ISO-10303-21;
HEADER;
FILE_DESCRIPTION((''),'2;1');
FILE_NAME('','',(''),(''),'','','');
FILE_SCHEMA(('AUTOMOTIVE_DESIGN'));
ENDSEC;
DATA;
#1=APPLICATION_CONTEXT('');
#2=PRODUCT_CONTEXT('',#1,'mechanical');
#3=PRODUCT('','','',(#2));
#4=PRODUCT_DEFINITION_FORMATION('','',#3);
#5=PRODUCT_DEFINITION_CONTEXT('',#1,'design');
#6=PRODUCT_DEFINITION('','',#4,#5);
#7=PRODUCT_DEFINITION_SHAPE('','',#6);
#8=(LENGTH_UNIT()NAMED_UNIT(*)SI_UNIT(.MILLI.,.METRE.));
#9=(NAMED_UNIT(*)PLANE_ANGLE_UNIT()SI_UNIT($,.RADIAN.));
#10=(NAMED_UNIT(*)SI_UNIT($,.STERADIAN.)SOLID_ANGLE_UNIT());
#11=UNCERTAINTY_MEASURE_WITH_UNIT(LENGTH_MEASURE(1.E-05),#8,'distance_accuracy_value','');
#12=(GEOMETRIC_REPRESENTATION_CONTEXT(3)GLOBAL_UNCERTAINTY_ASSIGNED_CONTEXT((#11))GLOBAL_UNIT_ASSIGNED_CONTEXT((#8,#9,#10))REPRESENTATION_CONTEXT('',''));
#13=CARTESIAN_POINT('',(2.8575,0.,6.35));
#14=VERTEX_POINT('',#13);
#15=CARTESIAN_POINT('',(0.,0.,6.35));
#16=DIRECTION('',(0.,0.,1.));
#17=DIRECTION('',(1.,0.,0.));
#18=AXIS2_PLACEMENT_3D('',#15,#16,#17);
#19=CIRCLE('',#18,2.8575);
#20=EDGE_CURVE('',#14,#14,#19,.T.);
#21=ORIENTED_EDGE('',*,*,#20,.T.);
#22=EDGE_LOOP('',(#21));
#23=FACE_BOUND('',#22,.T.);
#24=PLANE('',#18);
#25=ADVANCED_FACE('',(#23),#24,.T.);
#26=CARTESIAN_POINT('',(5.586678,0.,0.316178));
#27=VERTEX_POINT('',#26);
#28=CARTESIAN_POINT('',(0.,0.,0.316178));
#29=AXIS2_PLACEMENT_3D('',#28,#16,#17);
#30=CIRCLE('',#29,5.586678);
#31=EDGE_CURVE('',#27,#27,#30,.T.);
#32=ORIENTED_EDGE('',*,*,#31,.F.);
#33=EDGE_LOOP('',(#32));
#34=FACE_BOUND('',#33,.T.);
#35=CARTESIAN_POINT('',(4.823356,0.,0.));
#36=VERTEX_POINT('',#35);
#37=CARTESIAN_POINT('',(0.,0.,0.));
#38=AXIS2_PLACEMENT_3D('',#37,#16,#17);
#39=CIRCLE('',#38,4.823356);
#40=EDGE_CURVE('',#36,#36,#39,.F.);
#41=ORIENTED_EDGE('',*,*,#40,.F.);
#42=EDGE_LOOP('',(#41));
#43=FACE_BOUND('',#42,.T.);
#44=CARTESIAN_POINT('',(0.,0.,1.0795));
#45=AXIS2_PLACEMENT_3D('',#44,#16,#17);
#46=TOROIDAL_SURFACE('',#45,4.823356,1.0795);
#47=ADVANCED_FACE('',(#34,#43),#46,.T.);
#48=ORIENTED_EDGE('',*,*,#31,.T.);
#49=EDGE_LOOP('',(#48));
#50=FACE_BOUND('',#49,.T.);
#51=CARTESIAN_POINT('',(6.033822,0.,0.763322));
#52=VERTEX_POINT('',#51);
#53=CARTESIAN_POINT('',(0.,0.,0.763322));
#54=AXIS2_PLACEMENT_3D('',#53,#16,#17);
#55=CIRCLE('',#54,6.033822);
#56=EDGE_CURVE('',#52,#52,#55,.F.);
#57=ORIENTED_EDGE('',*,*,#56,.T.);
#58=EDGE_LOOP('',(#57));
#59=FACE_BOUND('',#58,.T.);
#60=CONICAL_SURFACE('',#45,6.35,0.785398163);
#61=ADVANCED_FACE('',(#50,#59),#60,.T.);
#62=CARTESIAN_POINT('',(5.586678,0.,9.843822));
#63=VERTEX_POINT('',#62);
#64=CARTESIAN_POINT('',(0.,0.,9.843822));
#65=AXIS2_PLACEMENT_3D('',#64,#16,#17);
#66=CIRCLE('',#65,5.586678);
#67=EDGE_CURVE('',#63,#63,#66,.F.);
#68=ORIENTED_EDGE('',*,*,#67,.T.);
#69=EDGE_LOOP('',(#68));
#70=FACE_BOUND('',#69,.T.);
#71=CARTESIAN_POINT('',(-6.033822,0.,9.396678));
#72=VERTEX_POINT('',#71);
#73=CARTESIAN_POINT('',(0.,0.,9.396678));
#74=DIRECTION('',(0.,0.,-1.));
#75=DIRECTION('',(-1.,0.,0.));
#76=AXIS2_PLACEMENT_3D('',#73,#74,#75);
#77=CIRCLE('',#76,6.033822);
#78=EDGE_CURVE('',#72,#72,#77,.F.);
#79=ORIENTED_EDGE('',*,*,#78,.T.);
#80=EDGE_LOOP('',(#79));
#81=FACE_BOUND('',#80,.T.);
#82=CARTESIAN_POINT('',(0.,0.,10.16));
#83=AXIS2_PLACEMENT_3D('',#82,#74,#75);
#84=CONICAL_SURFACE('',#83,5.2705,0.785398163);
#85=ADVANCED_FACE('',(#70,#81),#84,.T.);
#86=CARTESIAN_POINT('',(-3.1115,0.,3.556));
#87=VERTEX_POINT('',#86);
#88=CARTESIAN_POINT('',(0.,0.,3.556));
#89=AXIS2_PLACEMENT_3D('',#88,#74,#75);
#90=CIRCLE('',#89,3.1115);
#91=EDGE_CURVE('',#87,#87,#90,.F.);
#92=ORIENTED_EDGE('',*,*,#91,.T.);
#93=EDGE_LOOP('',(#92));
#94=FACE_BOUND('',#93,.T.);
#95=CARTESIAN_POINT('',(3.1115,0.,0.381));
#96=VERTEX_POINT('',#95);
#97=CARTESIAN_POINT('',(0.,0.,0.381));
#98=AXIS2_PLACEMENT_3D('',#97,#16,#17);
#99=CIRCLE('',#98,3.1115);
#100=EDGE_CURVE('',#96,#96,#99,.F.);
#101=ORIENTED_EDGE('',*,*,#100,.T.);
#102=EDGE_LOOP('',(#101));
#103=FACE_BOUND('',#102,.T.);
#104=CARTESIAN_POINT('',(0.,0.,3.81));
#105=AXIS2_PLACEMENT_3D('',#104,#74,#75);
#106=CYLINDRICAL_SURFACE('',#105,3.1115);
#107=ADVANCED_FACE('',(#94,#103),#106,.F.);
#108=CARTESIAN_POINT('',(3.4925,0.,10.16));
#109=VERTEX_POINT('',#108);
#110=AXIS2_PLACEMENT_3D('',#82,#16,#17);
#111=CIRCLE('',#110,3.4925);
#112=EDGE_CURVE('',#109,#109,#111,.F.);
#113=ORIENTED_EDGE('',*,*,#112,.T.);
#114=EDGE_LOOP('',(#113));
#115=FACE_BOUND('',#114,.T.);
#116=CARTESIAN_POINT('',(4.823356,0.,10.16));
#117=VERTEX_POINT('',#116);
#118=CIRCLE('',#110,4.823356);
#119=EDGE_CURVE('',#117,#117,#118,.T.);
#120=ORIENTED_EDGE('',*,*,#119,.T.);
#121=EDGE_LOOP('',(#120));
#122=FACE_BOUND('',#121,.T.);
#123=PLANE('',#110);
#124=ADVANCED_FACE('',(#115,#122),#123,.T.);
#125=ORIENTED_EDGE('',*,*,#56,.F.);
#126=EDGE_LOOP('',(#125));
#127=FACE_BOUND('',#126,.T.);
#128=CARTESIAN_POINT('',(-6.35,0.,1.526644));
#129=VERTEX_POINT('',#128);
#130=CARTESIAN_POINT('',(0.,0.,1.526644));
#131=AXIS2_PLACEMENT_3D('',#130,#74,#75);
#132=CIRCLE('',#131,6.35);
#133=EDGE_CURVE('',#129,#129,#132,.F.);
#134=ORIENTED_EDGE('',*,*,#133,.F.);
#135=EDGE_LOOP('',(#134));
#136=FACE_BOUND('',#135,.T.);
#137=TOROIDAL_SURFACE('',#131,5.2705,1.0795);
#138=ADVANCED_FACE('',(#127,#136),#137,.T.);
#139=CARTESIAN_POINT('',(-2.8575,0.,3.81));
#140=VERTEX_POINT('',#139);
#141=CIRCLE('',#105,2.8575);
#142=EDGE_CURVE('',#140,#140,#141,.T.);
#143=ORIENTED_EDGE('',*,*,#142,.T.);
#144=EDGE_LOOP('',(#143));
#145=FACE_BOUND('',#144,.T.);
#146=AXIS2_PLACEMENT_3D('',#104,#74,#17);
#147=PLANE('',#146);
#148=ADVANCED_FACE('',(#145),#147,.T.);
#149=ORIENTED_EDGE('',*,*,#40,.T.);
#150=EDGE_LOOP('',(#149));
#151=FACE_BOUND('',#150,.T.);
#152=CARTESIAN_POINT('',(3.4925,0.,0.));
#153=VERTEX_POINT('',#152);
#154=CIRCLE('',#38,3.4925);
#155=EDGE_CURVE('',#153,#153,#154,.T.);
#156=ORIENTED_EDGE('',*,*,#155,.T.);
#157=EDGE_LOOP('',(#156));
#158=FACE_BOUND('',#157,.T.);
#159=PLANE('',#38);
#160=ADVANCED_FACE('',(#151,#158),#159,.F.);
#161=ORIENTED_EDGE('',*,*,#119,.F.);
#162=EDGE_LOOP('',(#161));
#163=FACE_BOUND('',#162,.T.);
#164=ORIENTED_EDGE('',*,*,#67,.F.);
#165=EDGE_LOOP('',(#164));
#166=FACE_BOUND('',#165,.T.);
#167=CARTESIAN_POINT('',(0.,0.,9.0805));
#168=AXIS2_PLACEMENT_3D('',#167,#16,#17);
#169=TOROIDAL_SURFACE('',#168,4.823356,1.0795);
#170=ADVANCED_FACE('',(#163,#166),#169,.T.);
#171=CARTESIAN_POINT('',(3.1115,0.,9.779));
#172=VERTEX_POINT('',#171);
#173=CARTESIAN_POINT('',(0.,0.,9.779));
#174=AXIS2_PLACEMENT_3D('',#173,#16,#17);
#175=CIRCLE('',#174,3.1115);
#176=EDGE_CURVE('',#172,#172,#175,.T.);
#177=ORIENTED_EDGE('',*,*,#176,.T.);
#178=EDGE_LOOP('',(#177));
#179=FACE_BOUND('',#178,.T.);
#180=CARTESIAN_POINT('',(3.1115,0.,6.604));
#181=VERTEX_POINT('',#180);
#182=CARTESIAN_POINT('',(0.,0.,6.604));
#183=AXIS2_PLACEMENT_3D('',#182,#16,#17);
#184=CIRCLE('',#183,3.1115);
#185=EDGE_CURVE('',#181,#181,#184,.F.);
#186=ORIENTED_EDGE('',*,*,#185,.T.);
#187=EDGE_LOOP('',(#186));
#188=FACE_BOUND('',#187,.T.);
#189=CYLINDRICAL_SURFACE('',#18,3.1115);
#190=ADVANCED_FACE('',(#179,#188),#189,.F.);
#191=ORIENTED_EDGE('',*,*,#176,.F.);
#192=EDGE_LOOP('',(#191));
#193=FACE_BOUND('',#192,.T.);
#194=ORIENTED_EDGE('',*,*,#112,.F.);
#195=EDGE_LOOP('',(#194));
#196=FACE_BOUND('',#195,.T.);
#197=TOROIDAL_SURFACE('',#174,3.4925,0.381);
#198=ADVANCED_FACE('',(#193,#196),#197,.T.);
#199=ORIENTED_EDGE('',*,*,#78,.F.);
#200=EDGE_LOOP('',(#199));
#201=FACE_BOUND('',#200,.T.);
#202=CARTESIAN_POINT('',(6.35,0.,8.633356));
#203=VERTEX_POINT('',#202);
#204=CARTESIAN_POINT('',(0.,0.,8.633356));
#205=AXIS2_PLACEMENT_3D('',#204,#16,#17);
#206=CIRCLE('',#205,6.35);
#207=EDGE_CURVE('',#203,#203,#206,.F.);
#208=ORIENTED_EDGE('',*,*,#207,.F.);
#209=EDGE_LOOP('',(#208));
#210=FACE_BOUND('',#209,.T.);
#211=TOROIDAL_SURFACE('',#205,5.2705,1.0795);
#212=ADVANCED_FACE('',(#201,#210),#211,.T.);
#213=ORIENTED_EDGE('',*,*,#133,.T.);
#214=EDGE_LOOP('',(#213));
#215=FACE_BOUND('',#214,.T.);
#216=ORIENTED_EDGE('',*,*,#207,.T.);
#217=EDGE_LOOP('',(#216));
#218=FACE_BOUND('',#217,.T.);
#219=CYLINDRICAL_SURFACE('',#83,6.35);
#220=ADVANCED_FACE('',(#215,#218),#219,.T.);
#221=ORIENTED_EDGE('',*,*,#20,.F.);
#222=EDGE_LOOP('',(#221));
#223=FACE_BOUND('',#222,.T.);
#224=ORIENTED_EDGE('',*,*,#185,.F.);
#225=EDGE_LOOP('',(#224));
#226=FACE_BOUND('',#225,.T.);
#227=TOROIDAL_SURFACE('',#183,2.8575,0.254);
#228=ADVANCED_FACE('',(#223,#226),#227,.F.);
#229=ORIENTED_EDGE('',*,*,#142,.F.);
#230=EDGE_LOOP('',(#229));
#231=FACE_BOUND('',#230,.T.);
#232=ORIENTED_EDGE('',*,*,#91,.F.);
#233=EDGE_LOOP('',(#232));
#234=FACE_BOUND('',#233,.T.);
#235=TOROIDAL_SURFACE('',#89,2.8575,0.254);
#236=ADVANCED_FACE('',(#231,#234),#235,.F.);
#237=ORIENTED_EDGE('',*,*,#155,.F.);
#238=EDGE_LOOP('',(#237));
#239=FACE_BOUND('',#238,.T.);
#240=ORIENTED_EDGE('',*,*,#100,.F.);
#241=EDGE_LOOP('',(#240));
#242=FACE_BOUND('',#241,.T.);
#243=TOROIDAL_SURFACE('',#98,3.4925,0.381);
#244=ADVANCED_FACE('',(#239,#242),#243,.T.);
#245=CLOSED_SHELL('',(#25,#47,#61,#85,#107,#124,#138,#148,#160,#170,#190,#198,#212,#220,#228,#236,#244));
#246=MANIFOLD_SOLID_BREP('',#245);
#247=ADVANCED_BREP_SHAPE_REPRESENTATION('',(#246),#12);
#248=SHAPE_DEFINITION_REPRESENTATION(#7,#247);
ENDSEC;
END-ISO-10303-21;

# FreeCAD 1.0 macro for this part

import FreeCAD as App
import Part
import Sketcher

V = App.Vector
Q = App.Units.Quantity


def edges_at(feature, points):
    """Names of the edges that pass closest to the given points."""
    edges = feature.Shape.Edges
    near = lambda p: min(range(len(edges)), key=lambda i: edges[i].distToShape(Part.Vertex(*p))[0])
    return sorted({f"Edge{near(p) + 1}" for p in points})

doc = App.newDocument("Part")
params = doc.addObject("Spreadsheet::Sheet", "Params")
for row, (alias, value) in enumerate([
    ("sketch1_diameter", "0.5 in"),
    ("pad1_length", "0.4 in"),
    ("sketch2_diameter", "0.245 in"),
    ("pocket1_length", "0.15 in"),
    ("chamfer_size", "0.0425 in"),
    ("fillet_radius", "0.01 in"),
    ("fillet2_radius", "0.015 in"),
    ("fillet3_radius", "0.0425 in"),
], start=1):
    params.set(f"A{row}", alias)
    params.set(f"B{row}", "=" + value)
    params.setAlias(f"B{row}", alias)

body = doc.addObject("PartDesign::Body", "Body")

sketch1 = body.newObject("Sketcher::SketchObject", "Sketch")
sketch1.AttachmentSupport = (doc.getObject("XY_Plane"), [""])
sketch1.MapMode = "FlatFace"
sketch1.addGeometry(Part.Circle(V(0, 0, 0), V(0, 0, 1), 6.35), False)
sketch1.addConstraint([
    Sketcher.Constraint("Coincident", 0, 3, -1, 1),
    Sketcher.Constraint("Diameter", 0, Q("0.5 in")),
])
sketch1.setExpression("Constraints[1]", "Params.sketch1_diameter")
pad1 = body.newObject("PartDesign::Pad", "Pad")
pad1.Profile = sketch1
pad1.setExpression("Length", "Params.pad1_length")

sketch2 = body.newObject("Sketcher::SketchObject", "Sketch001")
sketch2.AttachmentSupport = (doc.getObject("XY_Plane"), [""])
sketch2.MapMode = "FlatFace"
sketch2.AttachmentOffset = App.Placement(V(0, 0, 0.4 * 25.4), App.Rotation())
sketch2.addGeometry(Part.Circle(V(0, 0, 0), V(0, 0, 1), 3.1115), False)
sketch2.addConstraint([
    Sketcher.Constraint("Coincident", 0, 3, -1, 1),
    Sketcher.Constraint("Diameter", 0, Q("0.245 in")),
])
sketch2.setExpression("Constraints[1]", "Params.sketch2_diameter")
pocket1 = body.newObject("PartDesign::Pocket", "Pocket")
pocket1.Profile = sketch2
pocket1.setExpression("Length", "Params.pocket1_length")
doc.recompute()

datumplane = body.newObject("PartDesign::Plane", "DatumPlane")
datumplane.AttachmentSupport = (doc.getObject("XY_Plane"), [""])
datumplane.MapMode = "FlatFace"
datumplane.AttachmentOffset = App.Placement(V(0, 0, 0.2 * 25.4), App.Rotation())
mirrored = body.newObject("PartDesign::Mirrored", "Mirrored")
mirrored.Originals = [pocket1]
mirrored.MirrorPlane = (datumplane, [""])
body.Tip = mirrored
doc.recompute()

chamfer = body.newObject("PartDesign::Chamfer", "Chamfer")
chamfer.Base = (mirrored, edges_at(mirrored, [(-6.35, 0, 0), (-6.35, 0, 10.16)]))
chamfer.setExpression("Size", "Params.chamfer_size")
doc.recompute()

fillet = body.newObject("PartDesign::Fillet", "Fillet")
fillet.Base = (chamfer, edges_at(chamfer, [(-3.111, 0, 3.81), (-3.111, 0, 6.35)]))
fillet.setExpression("Radius", "Params.fillet_radius")
doc.recompute()

fillet2 = body.newObject("PartDesign::Fillet", "Fillet001")
fillet2.Base = (fillet, edges_at(fillet, [(-3.111, 0, 0), (-3.111, 0, 10.16)]))
fillet2.setExpression("Radius", "Params.fillet2_radius")
doc.recompute()

fillet3 = body.newObject("PartDesign::Fillet", "Fillet002")
fillet3.Base = (fillet2, edges_at(fillet2, [
    (-6.35, 0, 9.081),
    (-6.35, 0, 1.079),
    (-5.271, 0, 0),
    (-5.271, 0, 10.16),
]))
fillet3.setExpression("Radius", "Params.fillet3_radius")

doc.recompute()
